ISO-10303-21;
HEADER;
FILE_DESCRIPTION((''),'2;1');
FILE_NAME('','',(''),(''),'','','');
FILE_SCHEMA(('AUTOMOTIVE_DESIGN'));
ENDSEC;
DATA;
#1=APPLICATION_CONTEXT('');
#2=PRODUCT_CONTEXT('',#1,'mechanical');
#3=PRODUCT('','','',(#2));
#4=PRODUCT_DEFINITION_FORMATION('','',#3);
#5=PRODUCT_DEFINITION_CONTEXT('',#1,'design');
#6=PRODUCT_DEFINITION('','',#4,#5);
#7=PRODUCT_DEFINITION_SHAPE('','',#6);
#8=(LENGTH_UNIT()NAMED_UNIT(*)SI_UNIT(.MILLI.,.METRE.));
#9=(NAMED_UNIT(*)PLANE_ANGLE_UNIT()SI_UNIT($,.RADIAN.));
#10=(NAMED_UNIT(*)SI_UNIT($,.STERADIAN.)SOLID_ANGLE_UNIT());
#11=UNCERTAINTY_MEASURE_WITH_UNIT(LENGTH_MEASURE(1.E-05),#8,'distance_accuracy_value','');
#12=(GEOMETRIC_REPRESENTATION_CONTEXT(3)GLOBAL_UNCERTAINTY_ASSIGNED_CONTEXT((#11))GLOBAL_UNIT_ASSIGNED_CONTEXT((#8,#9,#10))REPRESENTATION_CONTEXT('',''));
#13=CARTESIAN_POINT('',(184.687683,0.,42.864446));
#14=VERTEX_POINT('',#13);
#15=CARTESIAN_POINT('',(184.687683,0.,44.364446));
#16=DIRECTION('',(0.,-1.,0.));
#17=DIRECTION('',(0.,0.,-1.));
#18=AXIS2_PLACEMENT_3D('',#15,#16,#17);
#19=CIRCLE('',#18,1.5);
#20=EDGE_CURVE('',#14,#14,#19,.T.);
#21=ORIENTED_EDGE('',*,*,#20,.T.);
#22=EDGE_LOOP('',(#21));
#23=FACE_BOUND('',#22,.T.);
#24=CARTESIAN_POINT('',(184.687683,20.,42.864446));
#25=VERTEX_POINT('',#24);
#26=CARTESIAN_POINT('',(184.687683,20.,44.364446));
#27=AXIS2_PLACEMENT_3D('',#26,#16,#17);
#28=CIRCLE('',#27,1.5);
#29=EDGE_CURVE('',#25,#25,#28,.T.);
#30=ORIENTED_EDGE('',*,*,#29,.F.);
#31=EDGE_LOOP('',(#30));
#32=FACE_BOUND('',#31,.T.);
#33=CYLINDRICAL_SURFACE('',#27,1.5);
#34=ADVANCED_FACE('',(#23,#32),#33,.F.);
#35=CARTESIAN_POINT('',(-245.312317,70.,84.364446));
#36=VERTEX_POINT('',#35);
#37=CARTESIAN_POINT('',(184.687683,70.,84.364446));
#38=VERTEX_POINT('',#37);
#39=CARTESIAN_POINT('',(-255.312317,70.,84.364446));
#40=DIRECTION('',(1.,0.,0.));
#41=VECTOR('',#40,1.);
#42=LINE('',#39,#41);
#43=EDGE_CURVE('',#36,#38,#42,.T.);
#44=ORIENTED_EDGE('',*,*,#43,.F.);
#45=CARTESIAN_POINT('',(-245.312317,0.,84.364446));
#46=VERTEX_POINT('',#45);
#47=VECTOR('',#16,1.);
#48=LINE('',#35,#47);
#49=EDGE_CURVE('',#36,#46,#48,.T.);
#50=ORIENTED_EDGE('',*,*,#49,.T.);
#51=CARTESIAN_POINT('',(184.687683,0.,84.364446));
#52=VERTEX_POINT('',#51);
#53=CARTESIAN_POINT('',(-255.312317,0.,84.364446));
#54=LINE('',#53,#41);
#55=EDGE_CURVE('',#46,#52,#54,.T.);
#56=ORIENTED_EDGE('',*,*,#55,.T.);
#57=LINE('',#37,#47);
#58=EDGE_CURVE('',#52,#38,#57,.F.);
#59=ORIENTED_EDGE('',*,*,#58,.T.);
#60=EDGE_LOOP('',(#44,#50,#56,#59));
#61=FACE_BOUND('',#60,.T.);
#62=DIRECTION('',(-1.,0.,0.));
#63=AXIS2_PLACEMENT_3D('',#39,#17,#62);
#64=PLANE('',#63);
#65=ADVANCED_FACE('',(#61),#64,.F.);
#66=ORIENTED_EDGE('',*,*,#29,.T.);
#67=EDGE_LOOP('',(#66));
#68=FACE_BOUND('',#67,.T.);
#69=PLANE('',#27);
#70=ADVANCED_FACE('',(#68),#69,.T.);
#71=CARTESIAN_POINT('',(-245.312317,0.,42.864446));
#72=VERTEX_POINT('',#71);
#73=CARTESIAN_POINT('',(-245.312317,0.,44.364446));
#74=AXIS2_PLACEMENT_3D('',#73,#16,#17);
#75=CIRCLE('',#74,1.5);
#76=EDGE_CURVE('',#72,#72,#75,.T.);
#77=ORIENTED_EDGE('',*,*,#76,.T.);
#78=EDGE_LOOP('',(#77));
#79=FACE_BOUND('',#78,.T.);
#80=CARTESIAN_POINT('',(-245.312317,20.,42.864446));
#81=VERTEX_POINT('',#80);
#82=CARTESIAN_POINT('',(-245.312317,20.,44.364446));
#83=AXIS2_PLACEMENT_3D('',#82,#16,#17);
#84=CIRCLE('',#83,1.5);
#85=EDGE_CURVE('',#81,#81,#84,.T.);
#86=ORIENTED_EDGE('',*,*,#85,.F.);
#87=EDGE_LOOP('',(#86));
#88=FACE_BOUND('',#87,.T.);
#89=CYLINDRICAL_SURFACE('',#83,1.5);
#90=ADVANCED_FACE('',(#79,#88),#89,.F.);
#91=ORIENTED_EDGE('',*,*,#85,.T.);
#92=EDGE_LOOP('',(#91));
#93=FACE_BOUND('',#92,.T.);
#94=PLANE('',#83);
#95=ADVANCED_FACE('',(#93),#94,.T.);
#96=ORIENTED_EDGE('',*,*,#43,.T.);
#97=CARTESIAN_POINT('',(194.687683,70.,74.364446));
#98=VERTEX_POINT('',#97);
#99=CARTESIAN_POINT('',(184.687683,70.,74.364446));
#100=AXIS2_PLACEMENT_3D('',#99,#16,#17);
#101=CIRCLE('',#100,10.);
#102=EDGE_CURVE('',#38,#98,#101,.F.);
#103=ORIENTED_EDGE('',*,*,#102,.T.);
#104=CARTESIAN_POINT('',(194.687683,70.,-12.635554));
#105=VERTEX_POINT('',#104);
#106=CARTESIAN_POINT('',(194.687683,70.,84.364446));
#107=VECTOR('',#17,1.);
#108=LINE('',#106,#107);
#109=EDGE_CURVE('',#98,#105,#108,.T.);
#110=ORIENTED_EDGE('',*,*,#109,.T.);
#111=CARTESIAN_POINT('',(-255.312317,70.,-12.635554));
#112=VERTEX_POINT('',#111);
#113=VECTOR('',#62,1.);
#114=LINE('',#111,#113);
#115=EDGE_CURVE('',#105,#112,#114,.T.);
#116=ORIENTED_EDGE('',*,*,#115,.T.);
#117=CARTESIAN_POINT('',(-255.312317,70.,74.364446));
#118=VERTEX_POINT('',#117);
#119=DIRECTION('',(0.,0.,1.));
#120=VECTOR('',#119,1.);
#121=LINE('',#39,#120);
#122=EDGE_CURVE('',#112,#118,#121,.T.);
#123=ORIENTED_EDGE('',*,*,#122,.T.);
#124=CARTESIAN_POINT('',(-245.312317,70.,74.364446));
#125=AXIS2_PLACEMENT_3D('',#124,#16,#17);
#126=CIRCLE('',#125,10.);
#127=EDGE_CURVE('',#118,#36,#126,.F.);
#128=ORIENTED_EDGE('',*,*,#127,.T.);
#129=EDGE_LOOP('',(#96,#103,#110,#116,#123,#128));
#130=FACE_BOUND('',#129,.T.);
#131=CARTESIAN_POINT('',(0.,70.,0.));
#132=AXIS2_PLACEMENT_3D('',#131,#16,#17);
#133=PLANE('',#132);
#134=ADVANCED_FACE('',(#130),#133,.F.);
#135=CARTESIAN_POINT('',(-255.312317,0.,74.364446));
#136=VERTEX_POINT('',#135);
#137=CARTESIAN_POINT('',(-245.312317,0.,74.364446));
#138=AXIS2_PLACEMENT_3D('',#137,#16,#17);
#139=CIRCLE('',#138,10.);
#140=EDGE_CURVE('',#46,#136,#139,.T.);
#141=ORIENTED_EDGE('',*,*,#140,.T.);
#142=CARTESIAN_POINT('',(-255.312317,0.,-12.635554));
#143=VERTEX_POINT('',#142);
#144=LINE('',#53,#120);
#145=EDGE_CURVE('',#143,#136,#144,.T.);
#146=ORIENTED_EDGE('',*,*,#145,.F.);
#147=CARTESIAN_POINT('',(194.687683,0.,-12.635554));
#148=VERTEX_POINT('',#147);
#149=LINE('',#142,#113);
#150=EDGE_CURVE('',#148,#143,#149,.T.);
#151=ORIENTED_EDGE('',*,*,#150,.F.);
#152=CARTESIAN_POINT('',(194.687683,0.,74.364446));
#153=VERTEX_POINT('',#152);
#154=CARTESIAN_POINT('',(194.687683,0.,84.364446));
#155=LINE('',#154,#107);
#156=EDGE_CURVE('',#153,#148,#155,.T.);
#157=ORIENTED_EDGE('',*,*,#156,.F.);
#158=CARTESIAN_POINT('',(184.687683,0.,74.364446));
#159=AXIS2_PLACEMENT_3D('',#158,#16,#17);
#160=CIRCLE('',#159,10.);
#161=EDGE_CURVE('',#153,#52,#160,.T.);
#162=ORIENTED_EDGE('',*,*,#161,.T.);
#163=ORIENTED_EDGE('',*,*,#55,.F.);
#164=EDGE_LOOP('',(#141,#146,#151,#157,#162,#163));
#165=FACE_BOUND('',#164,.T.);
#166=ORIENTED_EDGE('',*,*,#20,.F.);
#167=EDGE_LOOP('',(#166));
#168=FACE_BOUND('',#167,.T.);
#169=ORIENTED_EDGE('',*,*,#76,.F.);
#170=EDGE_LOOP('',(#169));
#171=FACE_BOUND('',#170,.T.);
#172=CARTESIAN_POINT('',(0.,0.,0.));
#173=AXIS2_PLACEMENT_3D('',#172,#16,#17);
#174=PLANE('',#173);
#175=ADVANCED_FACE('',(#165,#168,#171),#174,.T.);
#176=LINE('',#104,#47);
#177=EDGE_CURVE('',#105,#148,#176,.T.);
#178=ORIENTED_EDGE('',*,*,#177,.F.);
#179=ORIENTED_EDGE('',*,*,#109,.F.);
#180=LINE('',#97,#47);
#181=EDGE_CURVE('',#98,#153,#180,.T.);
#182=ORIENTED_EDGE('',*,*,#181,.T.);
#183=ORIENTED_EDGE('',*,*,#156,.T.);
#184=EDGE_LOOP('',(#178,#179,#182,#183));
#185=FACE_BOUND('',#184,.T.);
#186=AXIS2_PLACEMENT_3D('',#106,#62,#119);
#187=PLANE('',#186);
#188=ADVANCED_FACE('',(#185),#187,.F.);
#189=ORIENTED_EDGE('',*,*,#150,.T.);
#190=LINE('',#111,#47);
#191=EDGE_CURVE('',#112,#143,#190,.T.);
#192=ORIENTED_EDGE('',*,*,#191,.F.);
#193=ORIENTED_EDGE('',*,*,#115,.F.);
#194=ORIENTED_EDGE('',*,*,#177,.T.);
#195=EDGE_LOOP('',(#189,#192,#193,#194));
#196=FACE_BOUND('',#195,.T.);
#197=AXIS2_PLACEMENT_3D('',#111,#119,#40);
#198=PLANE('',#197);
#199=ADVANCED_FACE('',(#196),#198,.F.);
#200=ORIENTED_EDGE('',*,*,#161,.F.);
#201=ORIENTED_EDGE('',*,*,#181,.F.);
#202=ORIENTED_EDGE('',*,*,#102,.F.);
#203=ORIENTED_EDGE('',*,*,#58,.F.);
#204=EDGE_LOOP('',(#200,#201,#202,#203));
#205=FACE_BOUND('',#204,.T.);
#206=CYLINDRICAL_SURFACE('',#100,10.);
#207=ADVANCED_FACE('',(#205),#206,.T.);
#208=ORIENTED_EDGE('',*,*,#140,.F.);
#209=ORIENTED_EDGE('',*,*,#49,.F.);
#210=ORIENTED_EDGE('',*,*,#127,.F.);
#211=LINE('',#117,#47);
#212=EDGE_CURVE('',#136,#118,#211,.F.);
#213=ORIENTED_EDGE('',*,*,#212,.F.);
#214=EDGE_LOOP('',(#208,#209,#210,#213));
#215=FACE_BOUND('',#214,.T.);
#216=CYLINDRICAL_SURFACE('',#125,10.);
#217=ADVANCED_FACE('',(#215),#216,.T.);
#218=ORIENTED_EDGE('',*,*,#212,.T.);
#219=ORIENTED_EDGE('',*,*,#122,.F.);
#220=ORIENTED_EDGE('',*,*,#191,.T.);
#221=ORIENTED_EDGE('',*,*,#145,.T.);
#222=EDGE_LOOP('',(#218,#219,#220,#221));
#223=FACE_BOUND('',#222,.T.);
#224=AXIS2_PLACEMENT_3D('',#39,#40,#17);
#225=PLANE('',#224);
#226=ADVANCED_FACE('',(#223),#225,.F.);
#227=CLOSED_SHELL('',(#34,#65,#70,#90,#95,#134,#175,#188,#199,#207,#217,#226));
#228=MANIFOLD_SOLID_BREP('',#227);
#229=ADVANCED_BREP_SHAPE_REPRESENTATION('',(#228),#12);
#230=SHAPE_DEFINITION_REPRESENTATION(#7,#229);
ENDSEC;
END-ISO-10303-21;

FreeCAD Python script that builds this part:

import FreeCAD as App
import Part
import Sketcher
from FreeCAD import Vector


def edges_at(feature, points):
    """Names of the edges that pass closest to the given points."""
    edges = feature.Shape.Edges
    near = lambda p: min(range(len(edges)), key=lambda i: edges[i].distToShape(Part.Vertex(*p))[0])
    return sorted({f"Edge{near(p) + 1}" for p in points})


def add_polygon(sketch, points):
    """Adds a closed chain of lines whose ends are joined by coincident constraints."""
    first, n = sketch.GeometryCount, len(points)
    for a, b in zip(points, points[1:] + points[:1]):
        sketch.addGeometry(Part.LineSegment(App.Vector(*a, 0), App.Vector(*b, 0)), False)
    for i in range(n):
        sketch.addConstraint(Sketcher.Constraint("Coincident", first + i, 2, first + (i + 1) % n, 1))

doc = App.newDocument("Part")
params = doc.addObject("Spreadsheet::Sheet", "Params")
for row, (alias, value) in enumerate([
    ("sketch1_width", "450 mm"),
    ("sketch1_height", "97 mm"),
    ("pad1_length", "70 mm"),
    ("fillet_radius", "10 mm"),
    ("sketch2_diameter", "3 mm"),
    ("pocket1_length", "20 mm"),
], start=1):
    params.set(f"A{row}", alias)
    params.set(f"B{row}", "=" + value)
    params.setAlias(f"B{row}", alias)

body = doc.addObject("PartDesign::Body", "Body")

sketch1 = doc.addObject("Sketcher::SketchObject", "Sketch")
body.addObject(sketch1)
sketch1.AttachmentSupport = (doc.XZ_Plane, [""])
sketch1.MapMode = "FlatFace"
add_polygon(sketch1, [(-255, -13), (-255, 84), (195, 84), (195, -13)])
sketch1.addConstraint([
    Sketcher.Constraint("Vertical", 0),
    Sketcher.Constraint("Horizontal", 1),
    Sketcher.Constraint("Vertical", 2),
    Sketcher.Constraint("Horizontal", 3),
    Sketcher.Constraint("DistanceX", 1, 1, 1, 2, 450.0),
    Sketcher.Constraint("DistanceY", 0, 1, 0, 2, 97.0),
    Sketcher.Constraint("DistanceX", 0, 2, -1, 1, 255.312317),
    Sketcher.Constraint("DistanceY", -1, 1, 0, 2, 84.364446),
])
sketch1.setExpression("Constraints[8]", "Params.sketch1_width")
sketch1.setExpression("Constraints[9]", "Params.sketch1_height")
pad1 = doc.addObject("PartDesign::Pad", "Pad")
body.addObject(pad1)
pad1.Profile = sketch1
pad1.setExpression("Length", "Params.pad1_length")
pad1.Reversed = True
doc.recompute()

fillet = doc.addObject("PartDesign::Fillet", "Fillet")
body.addObject(fillet)
fillet.Base = (pad1, edges_at(pad1, [(194.688, 35, 84.364), (-255.312, 35, 84.364)]))
fillet.setExpression("Radius", "Params.fillet_radius")

sketch2 = doc.addObject("Sketcher::SketchObject", "Sketch001")
body.addObject(sketch2)
sketch2.AttachmentSupport = (doc.XZ_Plane, [""])
sketch2.MapMode = "FlatFace"
sketch2.addGeometry([
    Part.Circle(Vector(184.7, 44.4, 0), Vector(0, 0, 1), 1.5),
    Part.Circle(Vector(-245.3, 44.4, 0), Vector(0, 0, 1), 1.5),
], False)
sketch2.addConstraint([
    Sketcher.Constraint("Equal", 0, 1),
    Sketcher.Constraint("Horizontal", 0, 3, 1, 3),
    Sketcher.Constraint("Diameter", 0, 3.0),
    Sketcher.Constraint("DistanceX", 1, 3, 0, 3, 430.0),
    Sketcher.Constraint("DistanceX", -1, 1, 0, 3, 184.687683),
    Sketcher.Constraint("DistanceY", -1, 1, 0, 3, 44.364446),
])
sketch2.setExpression("Constraints[2]", "Params.sketch2_diameter")
pocket1 = doc.addObject("PartDesign::Pocket", "Pocket")
body.addObject(pocket1)
pocket1.Profile = sketch2
pocket1.setExpression("Length", "Params.pocket1_length")

doc.recompute()
